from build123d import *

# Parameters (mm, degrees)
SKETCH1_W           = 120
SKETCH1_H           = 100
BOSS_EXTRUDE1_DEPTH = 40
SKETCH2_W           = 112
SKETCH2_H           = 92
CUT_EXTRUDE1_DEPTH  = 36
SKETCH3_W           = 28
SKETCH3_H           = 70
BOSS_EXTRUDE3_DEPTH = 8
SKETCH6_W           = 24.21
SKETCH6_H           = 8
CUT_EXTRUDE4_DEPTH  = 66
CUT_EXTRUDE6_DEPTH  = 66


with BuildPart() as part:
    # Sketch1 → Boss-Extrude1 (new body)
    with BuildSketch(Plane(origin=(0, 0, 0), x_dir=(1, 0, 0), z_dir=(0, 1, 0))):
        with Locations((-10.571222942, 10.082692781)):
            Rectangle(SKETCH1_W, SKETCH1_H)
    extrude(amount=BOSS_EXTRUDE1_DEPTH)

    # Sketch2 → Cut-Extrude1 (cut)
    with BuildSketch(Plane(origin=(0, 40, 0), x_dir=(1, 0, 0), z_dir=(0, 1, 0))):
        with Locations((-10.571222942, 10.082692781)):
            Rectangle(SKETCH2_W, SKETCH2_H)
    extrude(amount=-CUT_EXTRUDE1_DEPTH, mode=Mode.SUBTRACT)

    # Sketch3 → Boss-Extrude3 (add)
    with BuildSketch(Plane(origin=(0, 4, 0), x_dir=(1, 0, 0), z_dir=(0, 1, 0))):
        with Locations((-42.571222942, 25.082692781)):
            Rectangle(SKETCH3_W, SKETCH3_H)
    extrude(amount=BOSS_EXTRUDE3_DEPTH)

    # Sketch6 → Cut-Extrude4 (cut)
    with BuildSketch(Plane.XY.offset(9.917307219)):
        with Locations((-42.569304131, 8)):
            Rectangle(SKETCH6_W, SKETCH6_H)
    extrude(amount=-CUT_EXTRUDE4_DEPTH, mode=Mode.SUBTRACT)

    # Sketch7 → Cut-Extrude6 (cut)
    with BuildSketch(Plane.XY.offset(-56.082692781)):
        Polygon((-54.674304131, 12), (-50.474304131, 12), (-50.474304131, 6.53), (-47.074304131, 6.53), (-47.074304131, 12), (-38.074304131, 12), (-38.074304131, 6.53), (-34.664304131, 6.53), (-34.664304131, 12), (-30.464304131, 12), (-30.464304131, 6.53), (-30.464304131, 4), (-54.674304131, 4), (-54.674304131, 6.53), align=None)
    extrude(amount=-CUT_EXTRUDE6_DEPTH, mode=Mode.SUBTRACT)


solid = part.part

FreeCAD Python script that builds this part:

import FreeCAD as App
import Part
import Sketcher

V = App.Vector
Q = App.Units.Quantity


def add_polygon(sketch, points):
    """Adds a closed chain of lines whose ends are joined by coincident constraints."""
    first, n = sketch.GeometryCount, len(points)
    for a, b in zip(points, points[1:] + points[:1]):
        sketch.addGeometry(Part.LineSegment(App.Vector(*a, 0), App.Vector(*b, 0)), False)
    for i in range(n):
        sketch.addConstraint(Sketcher.Constraint("Coincident", first + i, 2, first + (i + 1) % n, 1))

doc = App.newDocument("Part")
params = doc.addObject("Spreadsheet::Sheet", "Params")
for row, (alias, value) in enumerate([
    ("sketch1_width", "120 mm"),
    ("sketch1_height", "100 mm"),
    ("pad1_length", "40 mm"),
    ("sketch2_width", "112 mm"),
    ("sketch2_height", "92 mm"),
    ("pocket1_length", "36 mm"),
    ("sketch3_width", "28 mm"),
    ("sketch3_height", "70 mm"),
    ("pad2_length", "8 mm"),
    ("sketch4_height", "8 mm"),
    ("sketch4_width", "24.21 mm"),
    ("pocket2_length", "66 mm"),
    ("sketch5_width", "9 mm"),
    ("sketch5_height", "8 mm"),
    ("sketch5_width2", "4.2 mm"),
    ("sketch5_width3", "3.4 mm"),
    ("sketch5_width4", "24.21 mm"),
    ("pocket3_length", "66 mm"),
], start=1):
    params.set(f"A{row}", alias)
    params.set(f"B{row}", "=" + value)
    params.setAlias(f"B{row}", alias)

body = doc.addObject("PartDesign::Body", "Body")

# Sketch on XZ plane
sketch1 = body.newObject("Sketcher::SketchObject", "Sketch")
sketch1.AttachmentSupport = (doc.getObject("XZ_Plane"), [""])
sketch1.MapMode = "FlatFace"
add_polygon(sketch1, [(-71, -60), (-71, 40), (49, 40), (49, -60)])  # lines 0-3
sketch1.addConstraint([
    Sketcher.Constraint("Vertical", 0),
    Sketcher.Constraint("Horizontal", 1),
    Sketcher.Constraint("Vertical", 2),
    Sketcher.Constraint("Horizontal", 3),
    Sketcher.Constraint("DistanceX", 1, 1, 1, 2, Q("120 mm")),
    Sketcher.Constraint("DistanceY", 0, 1, 0, 2, Q("100 mm")),
    Sketcher.Constraint("DistanceX", 0, 2, -1, 1, Q("70.571223 mm")),
    Sketcher.Constraint("DistanceY", -1, 1, 0, 2, Q("39.917307 mm")),
])
sketch1.setExpression("Constraints[8]", "Params.sketch1_width")
sketch1.setExpression("Constraints[9]", "Params.sketch1_height")
pad1 = body.newObject("PartDesign::Pad", "Pad")
pad1.Profile = sketch1
pad1.setExpression("Length", "Params.pad1_length")
pad1.Reversed = True

# Sketch on XZ plane
sketch2 = body.newObject("Sketcher::SketchObject", "Sketch001")
sketch2.AttachmentSupport = (doc.getObject("XZ_Plane"), [""])
sketch2.MapMode = "FlatFace"
sketch2.AttachmentOffset = App.Placement(V(0, 0, -40), App.Rotation())
add_polygon(sketch2, [(-67, -56), (-67, 36), (45, 36), (45, -56)])  # lines 0-3
sketch2.addConstraint([
    Sketcher.Constraint("Vertical", 0),
    Sketcher.Constraint("Horizontal", 1),
    Sketcher.Constraint("Vertical", 2),
    Sketcher.Constraint("Horizontal", 3),
    Sketcher.Constraint("DistanceX", 1, 1, 1, 2, Q("112 mm")),
    Sketcher.Constraint("DistanceY", 0, 1, 0, 2, Q("92 mm")),
    Sketcher.Constraint("DistanceX", 0, 2, -1, 1, Q("66.571223 mm")),
    Sketcher.Constraint("DistanceY", -1, 1, 0, 2, Q("35.917307 mm")),
])
sketch2.setExpression("Constraints[8]", "Params.sketch2_width")
sketch2.setExpression("Constraints[9]", "Params.sketch2_height")
pocket1 = body.newObject("PartDesign::Pocket", "Pocket")
pocket1.Profile = sketch2
pocket1.setExpression("Length", "Params.pocket1_length")
pocket1.Reversed = True

# Sketch on XZ plane
sketch3 = body.newObject("Sketcher::SketchObject", "Sketch002")
sketch3.AttachmentSupport = (doc.getObject("XZ_Plane"), [""])
sketch3.MapMode = "FlatFace"
sketch3.AttachmentOffset = App.Placement(V(0, 0, -4), App.Rotation())
add_polygon(sketch3, [(-57, -60), (-57, 10), (-29, 10), (-29, -60)])  # lines 0-3
sketch3.addConstraint([
    Sketcher.Constraint("Vertical", 0),
    Sketcher.Constraint("Horizontal", 1),
    Sketcher.Constraint("Vertical", 2),
    Sketcher.Constraint("Horizontal", 3),
    Sketcher.Constraint("DistanceX", 1, 1, 1, 2, Q("28 mm")),
    Sketcher.Constraint("DistanceY", 0, 1, 0, 2, Q("70 mm")),
    Sketcher.Constraint("DistanceX", 0, 2, -1, 1, Q("56.571223 mm")),
    Sketcher.Constraint("DistanceY", -1, 1, 0, 2, Q("9.917307 mm")),
])
sketch3.setExpression("Constraints[8]", "Params.sketch3_width")
sketch3.setExpression("Constraints[9]", "Params.sketch3_height")
pad2 = body.newObject("PartDesign::Pad", "Pad001")
pad2.Profile = sketch3
pad2.setExpression("Length", "Params.pad2_length")
pad2.Reversed = True

# Sketch on XY plane
sketch4 = body.newObject("Sketcher::SketchObject", "Sketch003")
sketch4.AttachmentSupport = (doc.getObject("XY_Plane"), [""])
sketch4.MapMode = "FlatFace"
sketch4.AttachmentOffset = App.Placement(V(0, 0, 9.917307), App.Rotation())
add_polygon(sketch4, [(-55, 12), (-55, 4), (-30, 4), (-30, 12)])  # lines 0-3
sketch4.addConstraint([
    Sketcher.Constraint("Vertical", 0),
    Sketcher.Constraint("Horizontal", 1),
    Sketcher.Constraint("Vertical", 2),
    Sketcher.Constraint("Horizontal", 3),
    Sketcher.Constraint("DistanceY", 0, 2, 0, 1, Q("8 mm")),
    Sketcher.Constraint("DistanceY", -1, 1, 0, 2, Q("4 mm")),
    Sketcher.Constraint("DistanceX", 1, 1, 1, 2, Q("24.21 mm")),
    Sketcher.Constraint("DistanceX", 0, 2, -1, 1, Q("54.674304 mm")),
])
sketch4.setExpression("Constraints[8]", "Params.sketch4_height")
sketch4.setExpression("Constraints[10]", "Params.sketch4_width")
pocket2 = body.newObject("PartDesign::Pocket", "Pocket001")
pocket2.Profile = sketch4
pocket2.setExpression("Length", "Params.pocket2_length")

# Sketch on XY plane
sketch5 = body.newObject("Sketcher::SketchObject", "Sketch004")
sketch5.AttachmentSupport = (doc.getObject("XY_Plane"), [""])
sketch5.MapMode = "FlatFace"
sketch5.AttachmentOffset = App.Placement(V(0, 0, -56.082693), App.Rotation())
add_polygon(sketch5, [(-50.5, 12), (-54.7, 12), (-54.7, 4), (-30.5, 4), (-30.5, 12), (-34.7, 12), (-34.7, 6.5), (-38.1, 6.5), (-38.1, 12), (-47.1, 12), (-47.1, 6.5), (-50.5, 6.5)])  # lines 0-11
sketch5.addConstraint([
    Sketcher.Constraint("Horizontal", 0),
    Sketcher.Constraint("Vertical", 1),
    Sketcher.Constraint("Horizontal", 2),
    Sketcher.Constraint("Vertical", 3),
    Sketcher.Constraint("Horizontal", 4),
    Sketcher.Constraint("Vertical", 5),
    Sketcher.Constraint("Horizontal", 6),
    Sketcher.Constraint("Vertical", 7),
    Sketcher.Constraint("Horizontal", 8),
    Sketcher.Constraint("Vertical", 9),
    Sketcher.Constraint("Horizontal", 10),
    Sketcher.Constraint("Vertical", 11),
    Sketcher.Constraint("Horizontal", 0, 2, 3, 2),
    Sketcher.Constraint("Horizontal", 4, 2, 7, 2),
    Sketcher.Constraint("Horizontal", 6, 2, 9, 2),
    Sketcher.Constraint("Equal", 0, 4),
    Sketcher.Constraint("DistanceX", 8, 2, 8, 1, Q("9 mm")),
    Sketcher.Constraint("DistanceY", 1, 2, 1, 1, Q("8 mm")),
    Sketcher.Constraint("DistanceX", 0, 2, 0, 1, Q("4.2 mm")),
    Sketcher.Constraint("DistanceX", 10, 2, 10, 1, Q("3.4 mm")),
    Sketcher.Constraint("DistanceY", -1, 1, 0, 2, Q("12 mm")),
    Sketcher.Constraint("DistanceX", 2, 1, 2, 2, Q("24.21 mm")),
    Sketcher.Constraint("DistanceY", 5, 2, 5, 1, Q("5.47 mm")),
    Sketcher.Constraint("DistanceX", 0, 2, -1, 1, Q("54.674304 mm")),
])
sketch5.setExpression("Constraints[28]", "Params.sketch5_width")
sketch5.setExpression("Constraints[29]", "Params.sketch5_height")
sketch5.setExpression("Constraints[30]", "Params.sketch5_width2")
sketch5.setExpression("Constraints[31]", "Params.sketch5_width3")
sketch5.setExpression("Constraints[33]", "Params.sketch5_width4")
pocket3 = body.newObject("PartDesign::Pocket", "Pocket002")
pocket3.Profile = sketch5
pocket3.setExpression("Length", "Params.pocket3_length")

doc.recompute()
